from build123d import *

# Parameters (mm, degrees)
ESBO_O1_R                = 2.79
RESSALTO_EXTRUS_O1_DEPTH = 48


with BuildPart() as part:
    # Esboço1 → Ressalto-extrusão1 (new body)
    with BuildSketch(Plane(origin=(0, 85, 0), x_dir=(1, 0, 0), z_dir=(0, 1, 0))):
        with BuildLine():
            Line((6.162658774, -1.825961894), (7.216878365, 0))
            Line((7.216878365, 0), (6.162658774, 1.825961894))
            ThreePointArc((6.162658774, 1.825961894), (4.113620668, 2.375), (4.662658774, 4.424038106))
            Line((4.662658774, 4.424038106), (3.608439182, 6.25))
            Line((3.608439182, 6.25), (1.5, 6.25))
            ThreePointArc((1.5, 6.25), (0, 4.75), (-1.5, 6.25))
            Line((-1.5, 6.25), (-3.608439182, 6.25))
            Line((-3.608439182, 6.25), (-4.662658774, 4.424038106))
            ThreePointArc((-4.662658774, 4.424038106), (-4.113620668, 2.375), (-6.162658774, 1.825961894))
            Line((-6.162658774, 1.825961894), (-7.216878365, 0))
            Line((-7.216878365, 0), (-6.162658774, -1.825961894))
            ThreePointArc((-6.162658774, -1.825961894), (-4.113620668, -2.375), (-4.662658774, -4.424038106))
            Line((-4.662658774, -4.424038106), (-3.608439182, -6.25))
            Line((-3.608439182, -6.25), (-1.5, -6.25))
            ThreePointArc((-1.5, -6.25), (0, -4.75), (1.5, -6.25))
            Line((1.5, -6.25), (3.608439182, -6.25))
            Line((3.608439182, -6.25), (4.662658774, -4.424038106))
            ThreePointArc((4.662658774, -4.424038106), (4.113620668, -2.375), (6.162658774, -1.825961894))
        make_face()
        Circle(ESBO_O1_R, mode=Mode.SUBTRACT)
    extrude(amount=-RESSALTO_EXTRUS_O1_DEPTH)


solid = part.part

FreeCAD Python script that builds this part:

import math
import FreeCAD as App
import Part
import Sketcher
from FreeCAD import Vector
Q = App.Units.Quantity

doc = App.newDocument("Part")
body = doc.addObject("PartDesign::Body", "Body")

# Sketch on XZ plane
sketch1 = body.newObject("Sketcher::SketchObject", "Sketch")
sketch1.AttachmentSupport = (doc.getObject("XZ_Plane"), [""])
sketch1.MapMode = "FlatFace"
sketch1.AttachmentOffset = App.Placement(Vector(0, 0, -85), App.Rotation())
sketch1.addGeometry([
    Part.LineSegment(Vector(6.2, 1.8, 0), Vector(7.2, 0, 0)),  # 0
    Part.LineSegment(Vector(7.2, 0, 0), Vector(6.2, -1.8, 0)),  # 1
    Part.ArcOfCircle(Part.Circle(Vector(5.4, -3.1, 0), Vector(0, 0, 1), 1.5), math.radians(60), math.radians(240)),  # 2
    Part.LineSegment(Vector(4.7, -4.4, 0), Vector(3.6, -6.2, 0)),  # 3
    Part.LineSegment(Vector(3.6, -6.2, 0), Vector(1.5, -6.2, 0)),  # 4
    Part.ArcOfCircle(Part.Circle(Vector(0, -6.2, 0), Vector(0, 0, 1), 1.5), math.radians(0), math.radians(180)),  # 5
    Part.LineSegment(Vector(-1.5, -6.2, 0), Vector(-3.6, -6.2, 0)),  # 6
    Part.LineSegment(Vector(-3.6, -6.2, 0), Vector(-4.7, -4.4, 0)),  # 7
    Part.ArcOfCircle(Part.Circle(Vector(-5.4, -3.1, 0), Vector(0, 0, 1), 1.5), math.radians(-60), math.radians(120)),  # 8
    Part.LineSegment(Vector(-6.2, -1.8, 0), Vector(-7.2, 0, 0)),  # 9
    Part.LineSegment(Vector(-7.2, 0, 0), Vector(-6.2, 1.8, 0)),  # 10
    Part.ArcOfCircle(Part.Circle(Vector(-5.4, 3.1, 0), Vector(0, 0, 1), 1.5), math.radians(-120), math.radians(60)),  # 11
    Part.LineSegment(Vector(-4.7, 4.4, 0), Vector(-3.6, 6.2, 0)),  # 12
    Part.LineSegment(Vector(-3.6, 6.2, 0), Vector(-1.5, 6.2, 0)),  # 13
    Part.ArcOfCircle(Part.Circle(Vector(0, 6.2, 0), Vector(0, 0, 1), 1.5), math.radians(180), math.radians(360)),  # 14
    Part.LineSegment(Vector(1.5, 6.2, 0), Vector(3.6, 6.2, 0)),  # 15
    Part.LineSegment(Vector(3.6, 6.2, 0), Vector(4.7, 4.4, 0)),  # 16
    Part.ArcOfCircle(Part.Circle(Vector(5.4, 3.1, 0), Vector(0, 0, 1), 1.5), math.radians(120), math.radians(300)),  # 17
    Part.Circle(Vector(0, 0, 0), Vector(0, 0, 1), 2.8),  # 18
], False)
sketch1.addConstraint([
    Sketcher.Constraint("Coincident", 0, 2, 1, 1),
    Sketcher.Constraint("Coincident", 1, 2, 2, 1),
    Sketcher.Constraint("Coincident", 2, 2, 3, 1),
    Sketcher.Constraint("Coincident", 3, 2, 4, 1),
    Sketcher.Constraint("Coincident", 4, 2, 5, 1),
    Sketcher.Constraint("Coincident", 5, 2, 6, 1),
    Sketcher.Constraint("Coincident", 6, 2, 7, 1),
    Sketcher.Constraint("Coincident", 7, 2, 8, 1),
    Sketcher.Constraint("Coincident", 8, 2, 9, 1),
    Sketcher.Constraint("Coincident", 9, 2, 10, 1),
    Sketcher.Constraint("Coincident", 10, 2, 11, 1),
    Sketcher.Constraint("Coincident", 11, 2, 12, 1),
    Sketcher.Constraint("Coincident", 12, 2, 13, 1),
    Sketcher.Constraint("Coincident", 13, 2, 14, 1),
    Sketcher.Constraint("Coincident", 14, 2, 15, 1),
    Sketcher.Constraint("Coincident", 15, 2, 16, 1),
    Sketcher.Constraint("Coincident", 16, 2, 17, 1),
    Sketcher.Constraint("Coincident", 17, 2, 0, 1),
    Sketcher.Constraint("Horizontal", 4),
    Sketcher.Constraint("Horizontal", 6),
    Sketcher.Constraint("Horizontal", 13),
    Sketcher.Constraint("Horizontal", 15),
    Sketcher.Constraint("Coincident", 18, 3, -1, 1),
    Sketcher.Constraint("Equal", 2, 5),
    Sketcher.Constraint("Equal", 5, 8),
    Sketcher.Constraint("Equal", 8, 11),
    Sketcher.Constraint("Equal", 11, 14),
    Sketcher.Constraint("Equal", 14, 17),
    Sketcher.Constraint("Symmetric", 2, 3, 11, 3, -1, 1),
    Sketcher.Constraint("Symmetric", 5, 3, 14, 3, -1, 1),
    Sketcher.Constraint("Symmetric", 8, 3, 17, 3, -1, 1),
    Sketcher.Constraint("Symmetric", 0, 2, 9, 2, -1, 1),
    Sketcher.Constraint("Symmetric", 3, 2, 12, 2, -1, 1),
    Sketcher.Constraint("Symmetric", 6, 2, 15, 2, -1, 1),
    Sketcher.Constraint("Symmetric", 2, 3, 8, 3, -2),
    Sketcher.Constraint("Symmetric", 4, 2, 5, 2, -2),
    Sketcher.Constraint("PointOnObject", 0, 2, -1),
    Sketcher.Constraint("Parallel", 1, 3),
    Sketcher.Constraint("Parallel", 0, 7),
    Sketcher.Constraint("Parallel", 7, 9),
    Sketcher.Constraint("Parallel", 3, 10),
    Sketcher.Constraint("Parallel", 10, 12),
    Sketcher.Constraint("Parallel", 9, 16),
    Sketcher.Constraint("Horizontal", 5, 3, 3, 2),
    Sketcher.Constraint("Horizontal", 2, 2, 7, 2),
    Sketcher.Constraint("Horizontal", 1, 2, 8, 2),
    Sketcher.Constraint("Equal", 1, 3),
    Sketcher.Constraint("Radius", 2, Q("1.5 mm")),
    Sketcher.Constraint("Diameter", 18, Q("5.58 mm")),
    Sketcher.Constraint("Angle", 0, Q("-60 deg")),
    Sketcher.Constraint("DistanceY", 5, 3, 14, 3, Q("12.5 mm")),
    Sketcher.Constraint("DistanceX", 2, 2, 1, 2, Q("1.5 mm")),
    Sketcher.Constraint("DistanceY", 8, 3, 11, 3, Q("6.25 mm")),
    Sketcher.Constraint("DistanceX", 4, 2, 4, 1, Q("2.108439 mm")),
])
pad1 = body.newObject("PartDesign::Pad", "Pad")
pad1.Profile = sketch1
pad1.Length = 48

doc.recompute()
